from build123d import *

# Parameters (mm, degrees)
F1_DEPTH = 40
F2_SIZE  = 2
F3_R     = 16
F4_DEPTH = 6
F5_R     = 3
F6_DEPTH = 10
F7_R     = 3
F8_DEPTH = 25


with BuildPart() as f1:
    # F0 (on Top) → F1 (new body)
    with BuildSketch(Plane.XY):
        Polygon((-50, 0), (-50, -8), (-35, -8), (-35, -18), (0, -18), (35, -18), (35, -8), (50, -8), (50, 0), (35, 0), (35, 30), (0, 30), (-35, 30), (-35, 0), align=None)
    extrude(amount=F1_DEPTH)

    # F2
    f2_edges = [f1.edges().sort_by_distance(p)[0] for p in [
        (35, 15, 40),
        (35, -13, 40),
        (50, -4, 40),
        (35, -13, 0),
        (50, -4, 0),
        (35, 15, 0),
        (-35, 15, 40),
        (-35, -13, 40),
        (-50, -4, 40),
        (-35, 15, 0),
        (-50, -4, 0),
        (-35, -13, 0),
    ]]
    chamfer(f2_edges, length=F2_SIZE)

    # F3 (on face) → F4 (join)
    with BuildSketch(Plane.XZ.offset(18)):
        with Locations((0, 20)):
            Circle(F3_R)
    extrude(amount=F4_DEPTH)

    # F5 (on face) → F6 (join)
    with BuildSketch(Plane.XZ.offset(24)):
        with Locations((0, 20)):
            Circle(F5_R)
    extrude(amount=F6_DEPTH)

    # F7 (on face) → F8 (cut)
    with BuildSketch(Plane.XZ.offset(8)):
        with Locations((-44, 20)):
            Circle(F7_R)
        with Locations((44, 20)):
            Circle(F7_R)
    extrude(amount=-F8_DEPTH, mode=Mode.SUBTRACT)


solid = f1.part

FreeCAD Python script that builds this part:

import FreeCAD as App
import Part
import Sketcher
Q = App.Units.Quantity


def edges_at(feature, points):
    """Names of the edges that pass closest to the given points."""
    edges = feature.Shape.Edges
    near = lambda p: min(range(len(edges)), key=lambda i: edges[i].distToShape(Part.Vertex(*p))[0])
    return sorted({f"Edge{near(p) + 1}" for p in points})


def add_polygon(sketch, points):
    """Adds a closed chain of lines whose ends are joined by coincident constraints."""
    first, n = sketch.GeometryCount, len(points)
    for a, b in zip(points, points[1:] + points[:1]):
        sketch.addGeometry(Part.LineSegment(App.Vector(*a, 0), App.Vector(*b, 0)), False)
    for i in range(n):
        sketch.addConstraint(Sketcher.Constraint("Coincident", first + i, 2, first + (i + 1) % n, 1))

doc = App.newDocument("Part")
body = doc.addObject("PartDesign::Body", "Body")

sketch1 = doc.addObject("Sketcher::SketchObject", "Sketch")
body.addObject(sketch1)
sketch1.AttachmentSupport = (doc.XY_Plane, [""])
sketch1.MapMode = "FlatFace"
add_polygon(sketch1, [(-50, 0), (-50, -8), (-35, -8), (-35, -18), (35, -18), (35, -8), (50, -8), (50, 0), (35, 0), (35, 30), (-35, 30), (-35, 0)])
sketch1.addConstraint([
    Sketcher.Constraint("Vertical", 0),
    Sketcher.Constraint("Horizontal", 1),
    Sketcher.Constraint("Vertical", 2),
    Sketcher.Constraint("Horizontal", 3),
    Sketcher.Constraint("Vertical", 4),
    Sketcher.Constraint("Horizontal", 5),
    Sketcher.Constraint("Vertical", 6),
    Sketcher.Constraint("Horizontal", 7),
    Sketcher.Constraint("Vertical", 8),
    Sketcher.Constraint("Horizontal", 9),
    Sketcher.Constraint("Vertical", 10),
    Sketcher.Constraint("Horizontal", 11),
    Sketcher.Constraint("Symmetric", 7, 2, 10, 2, -1, 1),
    Sketcher.Constraint("Symmetric", 1, 2, 4, 2, -2),
    Sketcher.Constraint("Symmetric", 6, 2, 11, 2, -2),
    Sketcher.Constraint("Vertical", 4, 2, 7, 2),
    Sketcher.Constraint("DistanceX", 1, 1, 1, 2, Q("15 mm")),
    Sketcher.Constraint("DistanceX", 3, 1, 3, 2, Q("70 mm")),
    Sketcher.Constraint("DistanceY", 0, 2, 0, 1, Q("8 mm")),
    Sketcher.Constraint("DistanceY", 2, 2, 2, 1, Q("10 mm")),
    Sketcher.Constraint("DistanceY", 8, 1, 8, 2, Q("30 mm")),
])
pad1 = doc.addObject("PartDesign::Pad", "Pad")
body.addObject(pad1)
pad1.Profile = sketch1
pad1.Length = 40
doc.recompute()

chamfer = doc.addObject("PartDesign::Chamfer", "Chamfer")
body.addObject(chamfer)
chamfer.Base = (pad1, edges_at(pad1, [
    (35, 15, 40),
    (35, -13, 40),
    (50, -4, 40),
    (35, -13, 0),
    (50, -4, 0),
    (35, 15, 0),
    (-35, 15, 40),
    (-35, -13, 40),
    (-50, -4, 40),
    (-35, 15, 0),
    (-50, -4, 0),
    (-35, -13, 0),
]))
chamfer.Size = 2

sketch2 = doc.addObject("Sketcher::SketchObject", "Sketch001")
body.addObject(sketch2)
sketch2.AttachmentSupport = (doc.XZ_Plane, [""])
sketch2.MapMode = "FlatFace"
sketch2.AttachmentOffset = App.Placement(App.Vector(0, 0, 18), App.Rotation())
sketch2.addGeometry(Part.Circle(App.Vector(0, 20, 0), App.Vector(0, 0, 1), 16), False)
sketch2.addConstraint([
    Sketcher.Constraint("PointOnObject", 0, 3, -2),
    Sketcher.Constraint("Diameter", 0, Q("32 mm")),
    Sketcher.Constraint("DistanceY", -1, 1, 0, 3, Q("20 mm")),
])
pad2 = doc.addObject("PartDesign::Pad", "Pad001")
body.addObject(pad2)
pad2.Profile = sketch2
pad2.Length = 6

sketch3 = doc.addObject("Sketcher::SketchObject", "Sketch002")
body.addObject(sketch3)
sketch3.AttachmentSupport = (doc.XZ_Plane, [""])
sketch3.MapMode = "FlatFace"
sketch3.AttachmentOffset = App.Placement(App.Vector(0, 0, 24), App.Rotation())
sketch3.addGeometry(Part.Circle(App.Vector(0, 20, 0), App.Vector(0, 0, 1), 3), False)
sketch3.addConstraint([
    Sketcher.Constraint("PointOnObject", 0, 3, -2),
    Sketcher.Constraint("Diameter", 0, Q("6 mm")),
    Sketcher.Constraint("DistanceY", -1, 1, 0, 3, Q("20 mm")),
])
pad3 = doc.addObject("PartDesign::Pad", "Pad002")
body.addObject(pad3)
pad3.Profile = sketch3
pad3.Length = 10

sketch4 = doc.addObject("Sketcher::SketchObject", "Sketch003")
body.addObject(sketch4)
sketch4.AttachmentSupport = (doc.XZ_Plane, [""])
sketch4.MapMode = "FlatFace"
sketch4.AttachmentOffset = App.Placement(App.Vector(0, 0, 8), App.Rotation())
sketch4.addGeometry([
    Part.Circle(App.Vector(-44, 20, 0), App.Vector(0, 0, 1), 3),
    Part.Circle(App.Vector(44, 20, 0), App.Vector(0, 0, 1), 3),
], False)
sketch4.addConstraint([
    Sketcher.Constraint("Equal", 0, 1),
    Sketcher.Constraint("Symmetric", 0, 3, 1, 3, -2),
    Sketcher.Constraint("Diameter", 0, Q("6 mm")),
    Sketcher.Constraint("DistanceX", 0, 3, -1, 1, Q("44 mm")),
    Sketcher.Constraint("DistanceY", -1, 1, 0, 3, Q("20 mm")),
])
pocket1 = doc.addObject("PartDesign::Pocket", "Pocket")
body.addObject(pocket1)
pocket1.Profile = sketch4
pocket1.Length = 25

doc.recompute()
